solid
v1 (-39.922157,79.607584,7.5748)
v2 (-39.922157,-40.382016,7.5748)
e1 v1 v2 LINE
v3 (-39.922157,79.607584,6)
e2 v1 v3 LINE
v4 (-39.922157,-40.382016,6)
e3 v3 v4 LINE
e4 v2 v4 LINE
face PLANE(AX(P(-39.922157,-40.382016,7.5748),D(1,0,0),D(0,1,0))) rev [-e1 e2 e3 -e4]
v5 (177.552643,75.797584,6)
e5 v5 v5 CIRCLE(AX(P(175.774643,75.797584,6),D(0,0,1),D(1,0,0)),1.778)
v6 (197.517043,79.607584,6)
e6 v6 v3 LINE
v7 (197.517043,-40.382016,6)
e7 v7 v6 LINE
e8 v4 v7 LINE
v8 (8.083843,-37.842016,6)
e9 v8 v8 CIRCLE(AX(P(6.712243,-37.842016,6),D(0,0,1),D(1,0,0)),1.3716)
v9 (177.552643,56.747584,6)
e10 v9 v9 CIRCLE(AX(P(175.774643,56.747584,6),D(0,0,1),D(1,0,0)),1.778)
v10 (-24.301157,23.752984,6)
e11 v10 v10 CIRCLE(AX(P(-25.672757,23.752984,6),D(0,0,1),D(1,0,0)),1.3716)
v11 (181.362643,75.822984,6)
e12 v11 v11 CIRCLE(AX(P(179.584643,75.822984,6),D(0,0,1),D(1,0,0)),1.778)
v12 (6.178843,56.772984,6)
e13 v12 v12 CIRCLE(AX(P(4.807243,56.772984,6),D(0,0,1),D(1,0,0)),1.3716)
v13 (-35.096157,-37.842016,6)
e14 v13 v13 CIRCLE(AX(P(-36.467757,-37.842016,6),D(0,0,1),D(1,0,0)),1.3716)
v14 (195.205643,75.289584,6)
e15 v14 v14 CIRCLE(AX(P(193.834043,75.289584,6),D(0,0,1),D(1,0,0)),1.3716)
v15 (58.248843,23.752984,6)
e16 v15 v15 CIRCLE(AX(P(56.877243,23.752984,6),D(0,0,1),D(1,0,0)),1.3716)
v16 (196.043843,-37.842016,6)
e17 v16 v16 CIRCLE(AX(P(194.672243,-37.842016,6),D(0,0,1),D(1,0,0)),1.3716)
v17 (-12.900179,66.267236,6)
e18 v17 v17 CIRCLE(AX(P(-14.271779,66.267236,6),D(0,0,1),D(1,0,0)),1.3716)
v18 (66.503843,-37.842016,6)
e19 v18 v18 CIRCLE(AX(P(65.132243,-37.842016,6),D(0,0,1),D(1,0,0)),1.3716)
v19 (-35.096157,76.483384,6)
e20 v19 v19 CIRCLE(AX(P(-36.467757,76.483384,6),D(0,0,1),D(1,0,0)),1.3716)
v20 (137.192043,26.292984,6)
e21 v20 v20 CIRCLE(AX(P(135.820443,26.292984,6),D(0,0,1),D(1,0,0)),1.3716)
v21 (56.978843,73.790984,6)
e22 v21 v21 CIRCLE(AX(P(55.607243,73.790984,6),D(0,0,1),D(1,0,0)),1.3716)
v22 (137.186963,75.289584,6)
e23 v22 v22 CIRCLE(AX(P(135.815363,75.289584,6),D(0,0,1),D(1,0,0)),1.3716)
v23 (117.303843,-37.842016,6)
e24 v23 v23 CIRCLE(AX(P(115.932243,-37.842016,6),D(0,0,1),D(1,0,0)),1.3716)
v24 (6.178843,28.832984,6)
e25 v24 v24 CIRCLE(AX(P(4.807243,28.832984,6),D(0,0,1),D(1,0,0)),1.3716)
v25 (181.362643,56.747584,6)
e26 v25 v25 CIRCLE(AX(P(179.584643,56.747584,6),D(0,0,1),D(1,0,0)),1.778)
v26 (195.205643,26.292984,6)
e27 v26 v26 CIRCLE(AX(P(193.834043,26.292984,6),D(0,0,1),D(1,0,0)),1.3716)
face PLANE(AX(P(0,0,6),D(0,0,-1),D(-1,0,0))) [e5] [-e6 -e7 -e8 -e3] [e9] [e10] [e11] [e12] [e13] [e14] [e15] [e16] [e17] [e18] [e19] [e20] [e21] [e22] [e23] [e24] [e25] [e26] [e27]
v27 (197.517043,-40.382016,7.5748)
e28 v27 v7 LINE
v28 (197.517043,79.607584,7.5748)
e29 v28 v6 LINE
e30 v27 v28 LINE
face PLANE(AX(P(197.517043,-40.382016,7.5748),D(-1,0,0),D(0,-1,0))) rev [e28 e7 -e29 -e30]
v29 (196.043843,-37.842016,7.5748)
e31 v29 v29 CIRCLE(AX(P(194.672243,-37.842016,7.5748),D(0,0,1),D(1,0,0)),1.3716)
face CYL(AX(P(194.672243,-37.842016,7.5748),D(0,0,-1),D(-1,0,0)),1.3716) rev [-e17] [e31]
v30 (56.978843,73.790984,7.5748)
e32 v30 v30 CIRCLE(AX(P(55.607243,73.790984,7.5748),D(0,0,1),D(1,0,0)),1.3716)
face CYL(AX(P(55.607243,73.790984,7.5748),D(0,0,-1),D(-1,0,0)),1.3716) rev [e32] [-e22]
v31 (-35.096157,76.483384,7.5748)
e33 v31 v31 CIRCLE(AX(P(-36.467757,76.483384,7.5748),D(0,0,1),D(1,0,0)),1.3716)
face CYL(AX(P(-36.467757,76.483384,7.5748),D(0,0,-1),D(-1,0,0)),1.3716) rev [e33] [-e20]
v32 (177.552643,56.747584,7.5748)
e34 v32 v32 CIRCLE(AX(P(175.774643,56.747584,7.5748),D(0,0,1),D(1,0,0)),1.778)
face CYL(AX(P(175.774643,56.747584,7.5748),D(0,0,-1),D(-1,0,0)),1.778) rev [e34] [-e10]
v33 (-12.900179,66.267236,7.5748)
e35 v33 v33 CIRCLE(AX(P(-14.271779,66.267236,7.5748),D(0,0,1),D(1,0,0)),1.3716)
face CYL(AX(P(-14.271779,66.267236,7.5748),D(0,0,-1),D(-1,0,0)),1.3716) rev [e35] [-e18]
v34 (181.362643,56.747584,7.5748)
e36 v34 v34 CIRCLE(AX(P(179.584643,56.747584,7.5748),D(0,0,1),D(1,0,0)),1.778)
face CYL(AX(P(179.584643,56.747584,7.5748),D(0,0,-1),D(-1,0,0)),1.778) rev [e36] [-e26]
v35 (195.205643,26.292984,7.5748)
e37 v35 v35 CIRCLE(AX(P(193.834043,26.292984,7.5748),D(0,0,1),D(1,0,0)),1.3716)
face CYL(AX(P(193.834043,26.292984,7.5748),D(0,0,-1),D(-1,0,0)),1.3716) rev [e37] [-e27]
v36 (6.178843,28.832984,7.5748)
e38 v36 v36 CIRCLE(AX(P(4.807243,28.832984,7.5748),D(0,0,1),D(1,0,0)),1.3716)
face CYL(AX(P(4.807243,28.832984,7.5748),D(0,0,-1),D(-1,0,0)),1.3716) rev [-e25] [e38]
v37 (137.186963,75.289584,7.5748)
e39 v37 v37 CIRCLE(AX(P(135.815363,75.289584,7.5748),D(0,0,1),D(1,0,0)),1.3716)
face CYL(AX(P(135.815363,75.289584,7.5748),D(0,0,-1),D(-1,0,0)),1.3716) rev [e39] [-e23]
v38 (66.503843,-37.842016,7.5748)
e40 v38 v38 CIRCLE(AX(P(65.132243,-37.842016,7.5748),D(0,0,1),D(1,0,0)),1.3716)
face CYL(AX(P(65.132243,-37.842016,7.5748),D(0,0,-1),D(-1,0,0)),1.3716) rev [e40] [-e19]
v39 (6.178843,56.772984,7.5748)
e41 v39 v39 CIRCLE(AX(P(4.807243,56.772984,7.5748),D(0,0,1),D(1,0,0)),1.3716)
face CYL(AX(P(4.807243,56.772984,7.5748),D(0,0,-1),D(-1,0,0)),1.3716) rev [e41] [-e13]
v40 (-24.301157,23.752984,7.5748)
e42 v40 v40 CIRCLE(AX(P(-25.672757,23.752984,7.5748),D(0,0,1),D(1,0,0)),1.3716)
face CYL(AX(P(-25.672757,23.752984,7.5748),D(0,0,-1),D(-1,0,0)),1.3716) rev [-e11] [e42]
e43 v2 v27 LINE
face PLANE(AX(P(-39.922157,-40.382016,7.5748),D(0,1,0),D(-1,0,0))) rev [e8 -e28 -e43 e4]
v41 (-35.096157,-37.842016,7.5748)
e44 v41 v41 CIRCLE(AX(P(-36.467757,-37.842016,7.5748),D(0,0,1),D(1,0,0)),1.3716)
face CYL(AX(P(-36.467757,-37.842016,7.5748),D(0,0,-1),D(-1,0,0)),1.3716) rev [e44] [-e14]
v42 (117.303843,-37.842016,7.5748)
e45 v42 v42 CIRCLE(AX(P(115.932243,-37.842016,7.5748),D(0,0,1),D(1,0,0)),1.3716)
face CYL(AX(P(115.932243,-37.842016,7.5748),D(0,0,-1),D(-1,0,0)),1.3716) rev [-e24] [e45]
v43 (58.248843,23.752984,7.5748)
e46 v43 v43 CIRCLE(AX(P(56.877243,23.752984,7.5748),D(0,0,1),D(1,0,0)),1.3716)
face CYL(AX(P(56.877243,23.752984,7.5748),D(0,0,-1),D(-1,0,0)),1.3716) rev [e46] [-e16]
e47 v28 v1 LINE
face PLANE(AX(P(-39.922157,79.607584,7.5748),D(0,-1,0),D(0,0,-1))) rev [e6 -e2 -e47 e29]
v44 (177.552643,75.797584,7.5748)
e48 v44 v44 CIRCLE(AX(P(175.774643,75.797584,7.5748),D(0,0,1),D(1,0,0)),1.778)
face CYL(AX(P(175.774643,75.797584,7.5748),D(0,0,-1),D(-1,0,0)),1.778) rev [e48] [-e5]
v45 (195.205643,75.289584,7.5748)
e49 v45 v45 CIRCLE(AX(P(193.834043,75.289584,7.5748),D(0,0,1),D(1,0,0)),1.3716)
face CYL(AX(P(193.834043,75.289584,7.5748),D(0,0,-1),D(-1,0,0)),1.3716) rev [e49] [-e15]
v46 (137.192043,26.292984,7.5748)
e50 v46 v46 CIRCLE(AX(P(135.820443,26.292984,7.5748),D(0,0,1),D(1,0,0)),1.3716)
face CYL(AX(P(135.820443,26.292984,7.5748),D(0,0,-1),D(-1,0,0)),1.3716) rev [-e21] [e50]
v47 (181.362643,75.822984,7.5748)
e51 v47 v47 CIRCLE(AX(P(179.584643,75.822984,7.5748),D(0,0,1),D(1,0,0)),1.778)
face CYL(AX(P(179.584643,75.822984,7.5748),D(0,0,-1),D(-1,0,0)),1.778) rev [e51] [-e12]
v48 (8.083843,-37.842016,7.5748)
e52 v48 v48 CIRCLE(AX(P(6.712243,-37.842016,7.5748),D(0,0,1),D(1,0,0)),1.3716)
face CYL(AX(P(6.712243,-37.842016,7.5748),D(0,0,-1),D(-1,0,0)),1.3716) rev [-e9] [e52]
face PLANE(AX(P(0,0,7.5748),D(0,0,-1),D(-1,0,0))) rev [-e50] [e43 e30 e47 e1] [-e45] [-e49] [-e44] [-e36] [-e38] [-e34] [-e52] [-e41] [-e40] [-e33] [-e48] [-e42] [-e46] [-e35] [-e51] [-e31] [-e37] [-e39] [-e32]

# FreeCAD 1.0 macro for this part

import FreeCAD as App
import Part
import Sketcher

V = App.Vector
Q = App.Units.Quantity


def add_polygon(sketch, points):
    """Adds a closed chain of lines whose ends are joined by coincident constraints."""
    first, n = sketch.GeometryCount, len(points)
    for a, b in zip(points, points[1:] + points[:1]):
        sketch.addGeometry(Part.LineSegment(App.Vector(*a, 0), App.Vector(*b, 0)), False)
    for i in range(n):
        sketch.addConstraint(Sketcher.Constraint("Coincident", first + i, 2, first + (i + 1) % n, 1))

doc = App.newDocument("Part")
body = doc.addObject("PartDesign::Body", "Body")

sketch1 = doc.addObject("Sketcher::SketchObject", "Sketch")
body.addObject(sketch1)
sketch1.AttachmentSupport = (doc.XY_Plane, [""])
sketch1.MapMode = "FlatFace"
sketch1.AttachmentOffset = App.Placement(V(0, 0, 6), App.Rotation())
add_polygon(sketch1, [(-39.9, 79.6), (-39.9, -40.4), (197.5, -40.4), (197.5, 79.6)])
sketch1.addGeometry(Part.Circle(V(-36.5, -37.8, 0), V(0, 0, 1), 1.4), False)
sketch1.addGeometry(Part.Circle(V(6.7, -37.8, 0), V(0, 0, 1), 1.4), False)
sketch1.addGeometry(Part.Circle(V(65.1, -37.8, 0), V(0, 0, 1), 1.4), False)
sketch1.addGeometry(Part.Circle(V(115.9, -37.8, 0), V(0, 0, 1), 1.4), False)
sketch1.addGeometry(Part.Circle(V(194.7, -37.8, 0), V(0, 0, 1), 1.4), False)
sketch1.addGeometry(Part.Circle(V(-25.7, 23.8, 0), V(0, 0, 1), 1.4), False)
sketch1.addGeometry(Part.Circle(V(4.8, 28.8, 0), V(0, 0, 1), 1.4), False)
sketch1.addGeometry(Part.Circle(V(56.9, 23.8, 0), V(0, 0, 1), 1.4), False)
sketch1.addGeometry(Part.Circle(V(4.8, 56.8, 0), V(0, 0, 1), 1.4), False)
sketch1.addGeometry(Part.Circle(V(-14.3, 66.3, 0), V(0, 0, 1), 1.4), False)
sketch1.addGeometry(Part.Circle(V(-36.5, 76.5, 0), V(0, 0, 1), 1.4), False)
sketch1.addGeometry(Part.Circle(V(55.6, 73.8, 0), V(0, 0, 1), 1.4), False)
sketch1.addGeometry(Part.Circle(V(135.8, 26.3, 0), V(0, 0, 1), 1.4), False)
sketch1.addGeometry(Part.Circle(V(193.8, 26.3, 0), V(0, 0, 1), 1.4), False)
sketch1.addGeometry(Part.Circle(V(135.8, 75.3, 0), V(0, 0, 1), 1.4), False)
sketch1.addGeometry(Part.Circle(V(175.8, 56.7, 0), V(0, 0, 1), 1.8), False)
sketch1.addGeometry(Part.Circle(V(179.6, 56.7, 0), V(0, 0, 1), 1.8), False)
sketch1.addGeometry(Part.Circle(V(175.8, 75.8, 0), V(0, 0, 1), 1.8), False)
sketch1.addGeometry(Part.Circle(V(179.6, 75.8, 0), V(0, 0, 1), 1.8), False)
sketch1.addGeometry(Part.Circle(V(193.8, 75.3, 0), V(0, 0, 1), 1.4), False)
sketch1.addConstraint(Sketcher.Constraint("Vertical", 0))
sketch1.addConstraint(Sketcher.Constraint("Horizontal", 1))
sketch1.addConstraint(Sketcher.Constraint("Vertical", 2))
sketch1.addConstraint(Sketcher.Constraint("Horizontal", 3))
sketch1.addConstraint(Sketcher.Constraint("Equal", 4, 5))
sketch1.addConstraint(Sketcher.Constraint("Equal", 5, 6))
sketch1.addConstraint(Sketcher.Constraint("Equal", 6, 7))
sketch1.addConstraint(Sketcher.Constraint("Equal", 7, 8))
sketch1.addConstraint(Sketcher.Constraint("Equal", 8, 9))
sketch1.addConstraint(Sketcher.Constraint("Equal", 9, 10))
sketch1.addConstraint(Sketcher.Constraint("Equal", 10, 11))
sketch1.addConstraint(Sketcher.Constraint("Equal", 11, 12))
sketch1.addConstraint(Sketcher.Constraint("Equal", 12, 13))
sketch1.addConstraint(Sketcher.Constraint("Equal", 13, 14))
sketch1.addConstraint(Sketcher.Constraint("Equal", 14, 15))
sketch1.addConstraint(Sketcher.Constraint("Equal", 15, 16))
sketch1.addConstraint(Sketcher.Constraint("Equal", 16, 17))
sketch1.addConstraint(Sketcher.Constraint("Equal", 17, 18))
sketch1.addConstraint(Sketcher.Constraint("Equal", 19, 20))
sketch1.addConstraint(Sketcher.Constraint("Equal", 20, 21))
sketch1.addConstraint(Sketcher.Constraint("Equal", 21, 22))
sketch1.addConstraint(Sketcher.Constraint("Equal", 18, 23))
sketch1.addConstraint(Sketcher.Constraint("Horizontal", 4, 3, 5, 3))
sketch1.addConstraint(Sketcher.Constraint("Horizontal", 5, 3, 6, 3))
sketch1.addConstraint(Sketcher.Constraint("Horizontal", 6, 3, 7, 3))
sketch1.addConstraint(Sketcher.Constraint("Horizontal", 7, 3, 8, 3))
sketch1.addConstraint(Sketcher.Constraint("Horizontal", 9, 3, 11, 3))
sketch1.addConstraint(Sketcher.Constraint("Horizontal", 16, 3, 17, 3))
sketch1.addConstraint(Sketcher.Constraint("Horizontal", 19, 3, 20, 3))
sketch1.addConstraint(Sketcher.Constraint("Horizontal", 18, 3, 23, 3))
sketch1.addConstraint(Sketcher.Constraint("Vertical", 10, 3, 12, 3))
sketch1.addConstraint(Sketcher.Constraint("Vertical", 4, 3, 14, 3))
sketch1.addConstraint(Sketcher.Constraint("Vertical", 19, 3, 21, 3))
sketch1.addConstraint(Sketcher.Constraint("Vertical", 20, 3, 22, 3))
sketch1.addConstraint(Sketcher.Constraint("Vertical", 17, 3, 23, 3))
sketch1.addConstraint(Sketcher.Constraint("Diameter", 19, Q("0.14 in")))
sketch1.addConstraint(Sketcher.Constraint("Diameter", 4, Q("0.108 in")))
sketch1.addConstraint(Sketcher.Constraint("DistanceX", 4, 3, 6, 3, Q("4 in")))
sketch1.addConstraint(Sketcher.Constraint("DistanceX", 6, 3, 7, 3, Q("2 in")))
sketch1.addConstraint(Sketcher.Constraint("DistanceX", 12, 3, 15, 3, Q("2 in")))
sketch1.addConstraint(Sketcher.Constraint("DistanceX", 4, 3, 5, 3, Q("1.7 in")))
sketch1.addConstraint(Sketcher.Constraint("DistanceX", 7, 3, 8, 3, Q("3.1 in")))
sketch1.addConstraint(Sketcher.Constraint("DistanceX", 9, 3, 10, 3, Q("1.2 in")))
sketch1.addConstraint(Sketcher.Constraint("DistanceY", 9, 3, 10, 3, Q("0.2 in")))
sketch1.addConstraint(Sketcher.Constraint("DistanceY", 10, 3, 12, 3, Q("1.1 in")))
sketch1.addConstraint(Sketcher.Constraint("DistanceY", 11, 3, 16, 3, Q("0.1 in")))
sketch1.addConstraint(Sketcher.Constraint("DistanceY", 0, 2, 4, 3, Q("0.1 in")))
sketch1.addConstraint(Sketcher.Constraint("DistanceY", 20, 3, 2, 2, Q("0.9 in")))
sketch1.addConstraint(Sketcher.Constraint("DistanceX", 1, 1, 1, 2, Q("9.348 in")))
sketch1.addConstraint(Sketcher.Constraint("DistanceY", 0, 2, 0, 1, Q("4.724 in")))
sketch1.addConstraint(Sketcher.Constraint("DistanceX", 10, 3, 11, 3, Q("2.05 in")))
sketch1.addConstraint(Sketcher.Constraint("DistanceY", 11, 3, 15, 3, Q("1.97 in")))
sketch1.addConstraint(Sketcher.Constraint("DistanceY", 19, 3, 18, 3, Q("0.73 in")))
sketch1.addConstraint(Sketcher.Constraint("DistanceX", 19, 3, 20, 3, Q("0.15 in")))
sketch1.addConstraint(Sketcher.Constraint("DistanceY", 19, 3, 21, 3, Q("0.75 in")))
sketch1.addConstraint(Sketcher.Constraint("DistanceY", 17, 3, 22, 3, Q("1.95 in")))
sketch1.addConstraint(Sketcher.Constraint("DistanceX", 4, 3, 9, 3, Q("0.425 in")))
sketch1.addConstraint(Sketcher.Constraint("DistanceY", 4, 3, 9, 3, Q("2.425 in")))
sketch1.addConstraint(Sketcher.Constraint("DistanceY", 12, 3, 14, 3, Q("0.776 in")))
sketch1.addConstraint(Sketcher.Constraint("DistanceX", 7, 3, 16, 3, Q("0.783 in")))
sketch1.addConstraint(Sketcher.Constraint("DistanceX", 16, 3, 17, 3, Q("2.284 in")))
sketch1.addConstraint(Sketcher.Constraint("DistanceX", 19, 3, 17, 3, Q("0.711 in")))
sketch1.addConstraint(Sketcher.Constraint("DistanceX", 0, 2, 4, 3, Q("0.136 in")))
sketch1.addConstraint(Sketcher.Constraint("DistanceX", 18, 3, 16, 3, Q("0.0002 in")))
sketch1.addConstraint(Sketcher.Constraint("DistanceX", 13, 3, -1, 1, Q("14.271779 mm")))
sketch1.addConstraint(Sketcher.Constraint("DistanceY", 12, 3, 13, 3, Q("9.494251 mm")))
sketch1.addConstraint(Sketcher.Constraint("DistanceX", 4, 3, -1, 1, Q("36.467757 mm")))
sketch1.addConstraint(Sketcher.Constraint("DistanceY", 4, 3, -1, 1, Q("37.842016 mm")))
pad1 = doc.addObject("PartDesign::Pad", "Pad")
body.addObject(pad1)
pad1.Profile = sketch1
pad1.Length = Q("0.062 in")

doc.recompute()
